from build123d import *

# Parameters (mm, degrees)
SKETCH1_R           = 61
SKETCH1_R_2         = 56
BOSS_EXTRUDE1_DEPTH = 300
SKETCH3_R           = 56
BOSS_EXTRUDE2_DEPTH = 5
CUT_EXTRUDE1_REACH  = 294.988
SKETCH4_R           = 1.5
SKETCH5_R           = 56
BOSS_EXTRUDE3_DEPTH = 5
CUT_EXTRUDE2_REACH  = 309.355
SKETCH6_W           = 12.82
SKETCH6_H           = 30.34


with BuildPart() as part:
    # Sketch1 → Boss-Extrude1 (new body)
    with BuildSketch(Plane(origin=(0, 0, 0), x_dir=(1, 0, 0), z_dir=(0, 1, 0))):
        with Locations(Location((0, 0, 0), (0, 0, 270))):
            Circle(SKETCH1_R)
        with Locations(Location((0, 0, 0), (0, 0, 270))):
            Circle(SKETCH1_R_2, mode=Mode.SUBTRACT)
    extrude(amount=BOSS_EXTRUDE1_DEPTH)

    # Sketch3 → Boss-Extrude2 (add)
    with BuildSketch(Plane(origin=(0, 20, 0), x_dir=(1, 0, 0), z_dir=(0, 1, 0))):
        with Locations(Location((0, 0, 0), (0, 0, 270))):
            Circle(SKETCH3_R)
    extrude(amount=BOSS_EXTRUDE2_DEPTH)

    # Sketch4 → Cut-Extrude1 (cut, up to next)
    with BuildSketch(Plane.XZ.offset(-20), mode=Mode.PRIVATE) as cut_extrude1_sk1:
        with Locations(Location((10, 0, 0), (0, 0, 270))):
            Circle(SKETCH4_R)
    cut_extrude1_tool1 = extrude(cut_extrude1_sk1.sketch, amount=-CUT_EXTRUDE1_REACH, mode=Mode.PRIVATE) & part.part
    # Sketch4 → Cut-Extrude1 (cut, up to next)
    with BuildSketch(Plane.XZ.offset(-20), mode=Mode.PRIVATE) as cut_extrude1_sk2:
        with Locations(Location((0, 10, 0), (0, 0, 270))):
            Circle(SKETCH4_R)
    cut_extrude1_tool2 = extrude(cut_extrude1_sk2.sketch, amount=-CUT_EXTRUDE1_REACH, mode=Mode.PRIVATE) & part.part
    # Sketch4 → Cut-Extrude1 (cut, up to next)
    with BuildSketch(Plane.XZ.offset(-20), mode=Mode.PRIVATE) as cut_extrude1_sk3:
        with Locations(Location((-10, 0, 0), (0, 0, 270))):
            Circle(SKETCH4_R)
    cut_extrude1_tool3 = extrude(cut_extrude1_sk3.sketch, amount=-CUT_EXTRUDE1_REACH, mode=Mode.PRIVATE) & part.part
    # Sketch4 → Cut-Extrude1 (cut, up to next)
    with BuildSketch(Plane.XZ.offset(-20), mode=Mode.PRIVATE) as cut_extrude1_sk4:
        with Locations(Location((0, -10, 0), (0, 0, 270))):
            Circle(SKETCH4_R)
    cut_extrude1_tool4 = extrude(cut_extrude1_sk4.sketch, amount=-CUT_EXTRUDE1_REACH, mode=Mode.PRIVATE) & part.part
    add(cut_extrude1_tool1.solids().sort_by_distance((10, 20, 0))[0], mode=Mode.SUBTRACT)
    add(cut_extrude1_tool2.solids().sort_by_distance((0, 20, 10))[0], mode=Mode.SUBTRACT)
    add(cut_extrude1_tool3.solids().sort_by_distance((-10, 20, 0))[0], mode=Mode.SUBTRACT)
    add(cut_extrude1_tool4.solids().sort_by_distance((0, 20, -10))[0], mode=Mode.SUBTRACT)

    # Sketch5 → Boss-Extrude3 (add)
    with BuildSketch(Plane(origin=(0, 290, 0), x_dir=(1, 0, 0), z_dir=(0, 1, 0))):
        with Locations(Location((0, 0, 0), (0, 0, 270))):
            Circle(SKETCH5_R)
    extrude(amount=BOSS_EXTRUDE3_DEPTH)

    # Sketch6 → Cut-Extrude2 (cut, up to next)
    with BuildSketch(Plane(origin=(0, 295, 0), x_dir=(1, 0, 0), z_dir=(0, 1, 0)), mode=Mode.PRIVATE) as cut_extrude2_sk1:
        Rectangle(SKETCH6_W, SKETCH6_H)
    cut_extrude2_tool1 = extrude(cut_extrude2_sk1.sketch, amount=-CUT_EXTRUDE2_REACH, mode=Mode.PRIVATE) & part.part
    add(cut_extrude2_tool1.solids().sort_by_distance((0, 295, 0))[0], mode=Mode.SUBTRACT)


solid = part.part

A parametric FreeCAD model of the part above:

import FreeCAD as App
import Part
import Sketcher
from FreeCAD import Vector
Q = App.Units.Quantity


def add_polygon(sketch, points):
    """Adds a closed chain of lines whose ends are joined by coincident constraints."""
    first, n = sketch.GeometryCount, len(points)
    for a, b in zip(points, points[1:] + points[:1]):
        sketch.addGeometry(Part.LineSegment(App.Vector(*a, 0), App.Vector(*b, 0)), False)
    for i in range(n):
        sketch.addConstraint(Sketcher.Constraint("Coincident", first + i, 2, first + (i + 1) % n, 1))

doc = App.newDocument("Part")
body = doc.addObject("PartDesign::Body", "Body")

sketch1 = doc.addObject("Sketcher::SketchObject", "Sketch")
body.addObject(sketch1)
sketch1.AttachmentSupport = (doc.XZ_Plane, [""])
sketch1.MapMode = "FlatFace"
sketch1.addGeometry(Part.Circle(Vector(0, 0, 0), Vector(0, 0, 1), 61), False)
sketch1.addGeometry(Part.Circle(Vector(0, 0, 0), Vector(0, 0, 1), 56), False)
sketch1.addConstraint(Sketcher.Constraint("Coincident", 0, 3, -1, 1))
sketch1.addConstraint(Sketcher.Constraint("Coincident", 1, 3, -1, 1))
sketch1.addConstraint(Sketcher.Constraint("Diameter", 0, Q("122 mm")))
sketch1.addConstraint(Sketcher.Constraint("Diameter", 1, Q("112 mm")))
pad1 = doc.addObject("PartDesign::Pad", "Pad")
body.addObject(pad1)
pad1.Profile = sketch1
pad1.Length = 300
pad1.Reversed = True

sketch2 = doc.addObject("Sketcher::SketchObject", "Sketch001")
body.addObject(sketch2)
sketch2.AttachmentSupport = (doc.XZ_Plane, [""])
sketch2.MapMode = "FlatFace"
sketch2.AttachmentOffset = App.Placement(Vector(0, 0, -20), App.Rotation())
sketch2.addGeometry(Part.Circle(Vector(0, 0, 0), Vector(0, 0, 1), 56), False)
sketch2.addConstraint(Sketcher.Constraint("Coincident", 0, 3, -1, 1))
sketch2.addConstraint(Sketcher.Constraint("Diameter", 0, Q("112 mm")))
pad2 = doc.addObject("PartDesign::Pad", "Pad001")
body.addObject(pad2)
pad2.Profile = sketch2
pad2.Length = 5
pad2.Reversed = True

sketch3 = doc.addObject("Sketcher::SketchObject", "Sketch002")
body.addObject(sketch3)
sketch3.AttachmentSupport = (doc.XZ_Plane, [""])
sketch3.MapMode = "FlatFace"
sketch3.AttachmentOffset = App.Placement(Vector(0, 0, -20), App.Rotation())
sketch3.addGeometry(Part.Circle(Vector(10, 0, 0), Vector(0, 0, 1), 1.5), False)
sketch3.addConstraint(Sketcher.Constraint("PointOnObject", 0, 3, -1))
sketch3.addConstraint(Sketcher.Constraint("Diameter", 0, Q("3 mm")))
sketch3.addConstraint(Sketcher.Constraint("DistanceX", -1, 1, 0, 3, Q("10 mm")))
pocket1 = doc.addObject("PartDesign::Pocket", "Pocket")
body.addObject(pocket1)
pocket1.Profile = sketch3
pocket1.Type = "UpToFirst"

sketch4 = doc.addObject("Sketcher::SketchObject", "Sketch003")
body.addObject(sketch4)
sketch4.AttachmentSupport = (doc.XZ_Plane, [""])
sketch4.MapMode = "FlatFace"
sketch4.AttachmentOffset = App.Placement(Vector(0, 0, -20), App.Rotation())
sketch4.addGeometry(Part.Circle(Vector(0, 10, 0), Vector(0, 0, 1), 1.5), False)
sketch4.addConstraint(Sketcher.Constraint("PointOnObject", 0, 3, -2))
sketch4.addConstraint(Sketcher.Constraint("Diameter", 0, Q("3 mm")))
sketch4.addConstraint(Sketcher.Constraint("DistanceY", -1, 1, 0, 3, Q("10 mm")))
pocket2 = doc.addObject("PartDesign::Pocket", "Pocket001")
body.addObject(pocket2)
pocket2.Profile = sketch4
pocket2.Type = "UpToFirst"

sketch5 = doc.addObject("Sketcher::SketchObject", "Sketch004")
body.addObject(sketch5)
sketch5.AttachmentSupport = (doc.XZ_Plane, [""])
sketch5.MapMode = "FlatFace"
sketch5.AttachmentOffset = App.Placement(Vector(0, 0, -20), App.Rotation())
sketch5.addGeometry(Part.Circle(Vector(-10, 0, 0), Vector(0, 0, 1), 1.5), False)
sketch5.addConstraint(Sketcher.Constraint("PointOnObject", 0, 3, -1))
sketch5.addConstraint(Sketcher.Constraint("Diameter", 0, Q("3 mm")))
sketch5.addConstraint(Sketcher.Constraint("DistanceX", 0, 3, -1, 1, Q("10 mm")))
pocket3 = doc.addObject("PartDesign::Pocket", "Pocket002")
body.addObject(pocket3)
pocket3.Profile = sketch5
pocket3.Type = "UpToFirst"

sketch6 = doc.addObject("Sketcher::SketchObject", "Sketch005")
body.addObject(sketch6)
sketch6.AttachmentSupport = (doc.XZ_Plane, [""])
sketch6.MapMode = "FlatFace"
sketch6.AttachmentOffset = App.Placement(Vector(0, 0, -20), App.Rotation())
sketch6.addGeometry(Part.Circle(Vector(0, -10, 0), Vector(0, 0, 1), 1.5), False)
sketch6.addConstraint(Sketcher.Constraint("PointOnObject", 0, 3, -2))
sketch6.addConstraint(Sketcher.Constraint("Diameter", 0, Q("3 mm")))
sketch6.addConstraint(Sketcher.Constraint("DistanceY", 0, 3, -1, 1, Q("10 mm")))
pocket4 = doc.addObject("PartDesign::Pocket", "Pocket003")
body.addObject(pocket4)
pocket4.Profile = sketch6
pocket4.Type = "UpToFirst"

sketch7 = doc.addObject("Sketcher::SketchObject", "Sketch006")
body.addObject(sketch7)
sketch7.AttachmentSupport = (doc.XZ_Plane, [""])
sketch7.MapMode = "FlatFace"
sketch7.AttachmentOffset = App.Placement(Vector(0, 0, -290), App.Rotation())
sketch7.addGeometry(Part.Circle(Vector(0, 0, 0), Vector(0, 0, 1), 56), False)
sketch7.addConstraint(Sketcher.Constraint("Coincident", 0, 3, -1, 1))
sketch7.addConstraint(Sketcher.Constraint("Diameter", 0, Q("112 mm")))
pad3 = doc.addObject("PartDesign::Pad", "Pad002")
body.addObject(pad3)
pad3.Profile = sketch7
pad3.Length = 5
pad3.Reversed = True

sketch8 = doc.addObject("Sketcher::SketchObject", "Sketch007")
body.addObject(sketch8)
sketch8.AttachmentSupport = (doc.XZ_Plane, [""])
sketch8.MapMode = "FlatFace"
sketch8.AttachmentOffset = App.Placement(Vector(0, 0, -295), App.Rotation())
add_polygon(sketch8, [(-6, -15), (-6, 15), (6, 15), (6, -15)])
sketch8.addConstraint(Sketcher.Constraint("Vertical", 0))
sketch8.addConstraint(Sketcher.Constraint("Horizontal", 1))
sketch8.addConstraint(Sketcher.Constraint("Vertical", 2))
sketch8.addConstraint(Sketcher.Constraint("Horizontal", 3))
sketch8.addConstraint(Sketcher.Constraint("Symmetric", 0, 2, 2, 2, -1, 1))
sketch8.addConstraint(Sketcher.Constraint("DistanceX", 1, 1, 1, 2, Q("12.82 mm")))
sketch8.addConstraint(Sketcher.Constraint("DistanceY", 0, 1, 0, 2, Q("30.34 mm")))
pocket5 = doc.addObject("PartDesign::Pocket", "Pocket004")
body.addObject(pocket5)
pocket5.Profile = sketch8
pocket5.Type = "UpToFirst"
pocket5.Reversed = True

doc.recompute()
